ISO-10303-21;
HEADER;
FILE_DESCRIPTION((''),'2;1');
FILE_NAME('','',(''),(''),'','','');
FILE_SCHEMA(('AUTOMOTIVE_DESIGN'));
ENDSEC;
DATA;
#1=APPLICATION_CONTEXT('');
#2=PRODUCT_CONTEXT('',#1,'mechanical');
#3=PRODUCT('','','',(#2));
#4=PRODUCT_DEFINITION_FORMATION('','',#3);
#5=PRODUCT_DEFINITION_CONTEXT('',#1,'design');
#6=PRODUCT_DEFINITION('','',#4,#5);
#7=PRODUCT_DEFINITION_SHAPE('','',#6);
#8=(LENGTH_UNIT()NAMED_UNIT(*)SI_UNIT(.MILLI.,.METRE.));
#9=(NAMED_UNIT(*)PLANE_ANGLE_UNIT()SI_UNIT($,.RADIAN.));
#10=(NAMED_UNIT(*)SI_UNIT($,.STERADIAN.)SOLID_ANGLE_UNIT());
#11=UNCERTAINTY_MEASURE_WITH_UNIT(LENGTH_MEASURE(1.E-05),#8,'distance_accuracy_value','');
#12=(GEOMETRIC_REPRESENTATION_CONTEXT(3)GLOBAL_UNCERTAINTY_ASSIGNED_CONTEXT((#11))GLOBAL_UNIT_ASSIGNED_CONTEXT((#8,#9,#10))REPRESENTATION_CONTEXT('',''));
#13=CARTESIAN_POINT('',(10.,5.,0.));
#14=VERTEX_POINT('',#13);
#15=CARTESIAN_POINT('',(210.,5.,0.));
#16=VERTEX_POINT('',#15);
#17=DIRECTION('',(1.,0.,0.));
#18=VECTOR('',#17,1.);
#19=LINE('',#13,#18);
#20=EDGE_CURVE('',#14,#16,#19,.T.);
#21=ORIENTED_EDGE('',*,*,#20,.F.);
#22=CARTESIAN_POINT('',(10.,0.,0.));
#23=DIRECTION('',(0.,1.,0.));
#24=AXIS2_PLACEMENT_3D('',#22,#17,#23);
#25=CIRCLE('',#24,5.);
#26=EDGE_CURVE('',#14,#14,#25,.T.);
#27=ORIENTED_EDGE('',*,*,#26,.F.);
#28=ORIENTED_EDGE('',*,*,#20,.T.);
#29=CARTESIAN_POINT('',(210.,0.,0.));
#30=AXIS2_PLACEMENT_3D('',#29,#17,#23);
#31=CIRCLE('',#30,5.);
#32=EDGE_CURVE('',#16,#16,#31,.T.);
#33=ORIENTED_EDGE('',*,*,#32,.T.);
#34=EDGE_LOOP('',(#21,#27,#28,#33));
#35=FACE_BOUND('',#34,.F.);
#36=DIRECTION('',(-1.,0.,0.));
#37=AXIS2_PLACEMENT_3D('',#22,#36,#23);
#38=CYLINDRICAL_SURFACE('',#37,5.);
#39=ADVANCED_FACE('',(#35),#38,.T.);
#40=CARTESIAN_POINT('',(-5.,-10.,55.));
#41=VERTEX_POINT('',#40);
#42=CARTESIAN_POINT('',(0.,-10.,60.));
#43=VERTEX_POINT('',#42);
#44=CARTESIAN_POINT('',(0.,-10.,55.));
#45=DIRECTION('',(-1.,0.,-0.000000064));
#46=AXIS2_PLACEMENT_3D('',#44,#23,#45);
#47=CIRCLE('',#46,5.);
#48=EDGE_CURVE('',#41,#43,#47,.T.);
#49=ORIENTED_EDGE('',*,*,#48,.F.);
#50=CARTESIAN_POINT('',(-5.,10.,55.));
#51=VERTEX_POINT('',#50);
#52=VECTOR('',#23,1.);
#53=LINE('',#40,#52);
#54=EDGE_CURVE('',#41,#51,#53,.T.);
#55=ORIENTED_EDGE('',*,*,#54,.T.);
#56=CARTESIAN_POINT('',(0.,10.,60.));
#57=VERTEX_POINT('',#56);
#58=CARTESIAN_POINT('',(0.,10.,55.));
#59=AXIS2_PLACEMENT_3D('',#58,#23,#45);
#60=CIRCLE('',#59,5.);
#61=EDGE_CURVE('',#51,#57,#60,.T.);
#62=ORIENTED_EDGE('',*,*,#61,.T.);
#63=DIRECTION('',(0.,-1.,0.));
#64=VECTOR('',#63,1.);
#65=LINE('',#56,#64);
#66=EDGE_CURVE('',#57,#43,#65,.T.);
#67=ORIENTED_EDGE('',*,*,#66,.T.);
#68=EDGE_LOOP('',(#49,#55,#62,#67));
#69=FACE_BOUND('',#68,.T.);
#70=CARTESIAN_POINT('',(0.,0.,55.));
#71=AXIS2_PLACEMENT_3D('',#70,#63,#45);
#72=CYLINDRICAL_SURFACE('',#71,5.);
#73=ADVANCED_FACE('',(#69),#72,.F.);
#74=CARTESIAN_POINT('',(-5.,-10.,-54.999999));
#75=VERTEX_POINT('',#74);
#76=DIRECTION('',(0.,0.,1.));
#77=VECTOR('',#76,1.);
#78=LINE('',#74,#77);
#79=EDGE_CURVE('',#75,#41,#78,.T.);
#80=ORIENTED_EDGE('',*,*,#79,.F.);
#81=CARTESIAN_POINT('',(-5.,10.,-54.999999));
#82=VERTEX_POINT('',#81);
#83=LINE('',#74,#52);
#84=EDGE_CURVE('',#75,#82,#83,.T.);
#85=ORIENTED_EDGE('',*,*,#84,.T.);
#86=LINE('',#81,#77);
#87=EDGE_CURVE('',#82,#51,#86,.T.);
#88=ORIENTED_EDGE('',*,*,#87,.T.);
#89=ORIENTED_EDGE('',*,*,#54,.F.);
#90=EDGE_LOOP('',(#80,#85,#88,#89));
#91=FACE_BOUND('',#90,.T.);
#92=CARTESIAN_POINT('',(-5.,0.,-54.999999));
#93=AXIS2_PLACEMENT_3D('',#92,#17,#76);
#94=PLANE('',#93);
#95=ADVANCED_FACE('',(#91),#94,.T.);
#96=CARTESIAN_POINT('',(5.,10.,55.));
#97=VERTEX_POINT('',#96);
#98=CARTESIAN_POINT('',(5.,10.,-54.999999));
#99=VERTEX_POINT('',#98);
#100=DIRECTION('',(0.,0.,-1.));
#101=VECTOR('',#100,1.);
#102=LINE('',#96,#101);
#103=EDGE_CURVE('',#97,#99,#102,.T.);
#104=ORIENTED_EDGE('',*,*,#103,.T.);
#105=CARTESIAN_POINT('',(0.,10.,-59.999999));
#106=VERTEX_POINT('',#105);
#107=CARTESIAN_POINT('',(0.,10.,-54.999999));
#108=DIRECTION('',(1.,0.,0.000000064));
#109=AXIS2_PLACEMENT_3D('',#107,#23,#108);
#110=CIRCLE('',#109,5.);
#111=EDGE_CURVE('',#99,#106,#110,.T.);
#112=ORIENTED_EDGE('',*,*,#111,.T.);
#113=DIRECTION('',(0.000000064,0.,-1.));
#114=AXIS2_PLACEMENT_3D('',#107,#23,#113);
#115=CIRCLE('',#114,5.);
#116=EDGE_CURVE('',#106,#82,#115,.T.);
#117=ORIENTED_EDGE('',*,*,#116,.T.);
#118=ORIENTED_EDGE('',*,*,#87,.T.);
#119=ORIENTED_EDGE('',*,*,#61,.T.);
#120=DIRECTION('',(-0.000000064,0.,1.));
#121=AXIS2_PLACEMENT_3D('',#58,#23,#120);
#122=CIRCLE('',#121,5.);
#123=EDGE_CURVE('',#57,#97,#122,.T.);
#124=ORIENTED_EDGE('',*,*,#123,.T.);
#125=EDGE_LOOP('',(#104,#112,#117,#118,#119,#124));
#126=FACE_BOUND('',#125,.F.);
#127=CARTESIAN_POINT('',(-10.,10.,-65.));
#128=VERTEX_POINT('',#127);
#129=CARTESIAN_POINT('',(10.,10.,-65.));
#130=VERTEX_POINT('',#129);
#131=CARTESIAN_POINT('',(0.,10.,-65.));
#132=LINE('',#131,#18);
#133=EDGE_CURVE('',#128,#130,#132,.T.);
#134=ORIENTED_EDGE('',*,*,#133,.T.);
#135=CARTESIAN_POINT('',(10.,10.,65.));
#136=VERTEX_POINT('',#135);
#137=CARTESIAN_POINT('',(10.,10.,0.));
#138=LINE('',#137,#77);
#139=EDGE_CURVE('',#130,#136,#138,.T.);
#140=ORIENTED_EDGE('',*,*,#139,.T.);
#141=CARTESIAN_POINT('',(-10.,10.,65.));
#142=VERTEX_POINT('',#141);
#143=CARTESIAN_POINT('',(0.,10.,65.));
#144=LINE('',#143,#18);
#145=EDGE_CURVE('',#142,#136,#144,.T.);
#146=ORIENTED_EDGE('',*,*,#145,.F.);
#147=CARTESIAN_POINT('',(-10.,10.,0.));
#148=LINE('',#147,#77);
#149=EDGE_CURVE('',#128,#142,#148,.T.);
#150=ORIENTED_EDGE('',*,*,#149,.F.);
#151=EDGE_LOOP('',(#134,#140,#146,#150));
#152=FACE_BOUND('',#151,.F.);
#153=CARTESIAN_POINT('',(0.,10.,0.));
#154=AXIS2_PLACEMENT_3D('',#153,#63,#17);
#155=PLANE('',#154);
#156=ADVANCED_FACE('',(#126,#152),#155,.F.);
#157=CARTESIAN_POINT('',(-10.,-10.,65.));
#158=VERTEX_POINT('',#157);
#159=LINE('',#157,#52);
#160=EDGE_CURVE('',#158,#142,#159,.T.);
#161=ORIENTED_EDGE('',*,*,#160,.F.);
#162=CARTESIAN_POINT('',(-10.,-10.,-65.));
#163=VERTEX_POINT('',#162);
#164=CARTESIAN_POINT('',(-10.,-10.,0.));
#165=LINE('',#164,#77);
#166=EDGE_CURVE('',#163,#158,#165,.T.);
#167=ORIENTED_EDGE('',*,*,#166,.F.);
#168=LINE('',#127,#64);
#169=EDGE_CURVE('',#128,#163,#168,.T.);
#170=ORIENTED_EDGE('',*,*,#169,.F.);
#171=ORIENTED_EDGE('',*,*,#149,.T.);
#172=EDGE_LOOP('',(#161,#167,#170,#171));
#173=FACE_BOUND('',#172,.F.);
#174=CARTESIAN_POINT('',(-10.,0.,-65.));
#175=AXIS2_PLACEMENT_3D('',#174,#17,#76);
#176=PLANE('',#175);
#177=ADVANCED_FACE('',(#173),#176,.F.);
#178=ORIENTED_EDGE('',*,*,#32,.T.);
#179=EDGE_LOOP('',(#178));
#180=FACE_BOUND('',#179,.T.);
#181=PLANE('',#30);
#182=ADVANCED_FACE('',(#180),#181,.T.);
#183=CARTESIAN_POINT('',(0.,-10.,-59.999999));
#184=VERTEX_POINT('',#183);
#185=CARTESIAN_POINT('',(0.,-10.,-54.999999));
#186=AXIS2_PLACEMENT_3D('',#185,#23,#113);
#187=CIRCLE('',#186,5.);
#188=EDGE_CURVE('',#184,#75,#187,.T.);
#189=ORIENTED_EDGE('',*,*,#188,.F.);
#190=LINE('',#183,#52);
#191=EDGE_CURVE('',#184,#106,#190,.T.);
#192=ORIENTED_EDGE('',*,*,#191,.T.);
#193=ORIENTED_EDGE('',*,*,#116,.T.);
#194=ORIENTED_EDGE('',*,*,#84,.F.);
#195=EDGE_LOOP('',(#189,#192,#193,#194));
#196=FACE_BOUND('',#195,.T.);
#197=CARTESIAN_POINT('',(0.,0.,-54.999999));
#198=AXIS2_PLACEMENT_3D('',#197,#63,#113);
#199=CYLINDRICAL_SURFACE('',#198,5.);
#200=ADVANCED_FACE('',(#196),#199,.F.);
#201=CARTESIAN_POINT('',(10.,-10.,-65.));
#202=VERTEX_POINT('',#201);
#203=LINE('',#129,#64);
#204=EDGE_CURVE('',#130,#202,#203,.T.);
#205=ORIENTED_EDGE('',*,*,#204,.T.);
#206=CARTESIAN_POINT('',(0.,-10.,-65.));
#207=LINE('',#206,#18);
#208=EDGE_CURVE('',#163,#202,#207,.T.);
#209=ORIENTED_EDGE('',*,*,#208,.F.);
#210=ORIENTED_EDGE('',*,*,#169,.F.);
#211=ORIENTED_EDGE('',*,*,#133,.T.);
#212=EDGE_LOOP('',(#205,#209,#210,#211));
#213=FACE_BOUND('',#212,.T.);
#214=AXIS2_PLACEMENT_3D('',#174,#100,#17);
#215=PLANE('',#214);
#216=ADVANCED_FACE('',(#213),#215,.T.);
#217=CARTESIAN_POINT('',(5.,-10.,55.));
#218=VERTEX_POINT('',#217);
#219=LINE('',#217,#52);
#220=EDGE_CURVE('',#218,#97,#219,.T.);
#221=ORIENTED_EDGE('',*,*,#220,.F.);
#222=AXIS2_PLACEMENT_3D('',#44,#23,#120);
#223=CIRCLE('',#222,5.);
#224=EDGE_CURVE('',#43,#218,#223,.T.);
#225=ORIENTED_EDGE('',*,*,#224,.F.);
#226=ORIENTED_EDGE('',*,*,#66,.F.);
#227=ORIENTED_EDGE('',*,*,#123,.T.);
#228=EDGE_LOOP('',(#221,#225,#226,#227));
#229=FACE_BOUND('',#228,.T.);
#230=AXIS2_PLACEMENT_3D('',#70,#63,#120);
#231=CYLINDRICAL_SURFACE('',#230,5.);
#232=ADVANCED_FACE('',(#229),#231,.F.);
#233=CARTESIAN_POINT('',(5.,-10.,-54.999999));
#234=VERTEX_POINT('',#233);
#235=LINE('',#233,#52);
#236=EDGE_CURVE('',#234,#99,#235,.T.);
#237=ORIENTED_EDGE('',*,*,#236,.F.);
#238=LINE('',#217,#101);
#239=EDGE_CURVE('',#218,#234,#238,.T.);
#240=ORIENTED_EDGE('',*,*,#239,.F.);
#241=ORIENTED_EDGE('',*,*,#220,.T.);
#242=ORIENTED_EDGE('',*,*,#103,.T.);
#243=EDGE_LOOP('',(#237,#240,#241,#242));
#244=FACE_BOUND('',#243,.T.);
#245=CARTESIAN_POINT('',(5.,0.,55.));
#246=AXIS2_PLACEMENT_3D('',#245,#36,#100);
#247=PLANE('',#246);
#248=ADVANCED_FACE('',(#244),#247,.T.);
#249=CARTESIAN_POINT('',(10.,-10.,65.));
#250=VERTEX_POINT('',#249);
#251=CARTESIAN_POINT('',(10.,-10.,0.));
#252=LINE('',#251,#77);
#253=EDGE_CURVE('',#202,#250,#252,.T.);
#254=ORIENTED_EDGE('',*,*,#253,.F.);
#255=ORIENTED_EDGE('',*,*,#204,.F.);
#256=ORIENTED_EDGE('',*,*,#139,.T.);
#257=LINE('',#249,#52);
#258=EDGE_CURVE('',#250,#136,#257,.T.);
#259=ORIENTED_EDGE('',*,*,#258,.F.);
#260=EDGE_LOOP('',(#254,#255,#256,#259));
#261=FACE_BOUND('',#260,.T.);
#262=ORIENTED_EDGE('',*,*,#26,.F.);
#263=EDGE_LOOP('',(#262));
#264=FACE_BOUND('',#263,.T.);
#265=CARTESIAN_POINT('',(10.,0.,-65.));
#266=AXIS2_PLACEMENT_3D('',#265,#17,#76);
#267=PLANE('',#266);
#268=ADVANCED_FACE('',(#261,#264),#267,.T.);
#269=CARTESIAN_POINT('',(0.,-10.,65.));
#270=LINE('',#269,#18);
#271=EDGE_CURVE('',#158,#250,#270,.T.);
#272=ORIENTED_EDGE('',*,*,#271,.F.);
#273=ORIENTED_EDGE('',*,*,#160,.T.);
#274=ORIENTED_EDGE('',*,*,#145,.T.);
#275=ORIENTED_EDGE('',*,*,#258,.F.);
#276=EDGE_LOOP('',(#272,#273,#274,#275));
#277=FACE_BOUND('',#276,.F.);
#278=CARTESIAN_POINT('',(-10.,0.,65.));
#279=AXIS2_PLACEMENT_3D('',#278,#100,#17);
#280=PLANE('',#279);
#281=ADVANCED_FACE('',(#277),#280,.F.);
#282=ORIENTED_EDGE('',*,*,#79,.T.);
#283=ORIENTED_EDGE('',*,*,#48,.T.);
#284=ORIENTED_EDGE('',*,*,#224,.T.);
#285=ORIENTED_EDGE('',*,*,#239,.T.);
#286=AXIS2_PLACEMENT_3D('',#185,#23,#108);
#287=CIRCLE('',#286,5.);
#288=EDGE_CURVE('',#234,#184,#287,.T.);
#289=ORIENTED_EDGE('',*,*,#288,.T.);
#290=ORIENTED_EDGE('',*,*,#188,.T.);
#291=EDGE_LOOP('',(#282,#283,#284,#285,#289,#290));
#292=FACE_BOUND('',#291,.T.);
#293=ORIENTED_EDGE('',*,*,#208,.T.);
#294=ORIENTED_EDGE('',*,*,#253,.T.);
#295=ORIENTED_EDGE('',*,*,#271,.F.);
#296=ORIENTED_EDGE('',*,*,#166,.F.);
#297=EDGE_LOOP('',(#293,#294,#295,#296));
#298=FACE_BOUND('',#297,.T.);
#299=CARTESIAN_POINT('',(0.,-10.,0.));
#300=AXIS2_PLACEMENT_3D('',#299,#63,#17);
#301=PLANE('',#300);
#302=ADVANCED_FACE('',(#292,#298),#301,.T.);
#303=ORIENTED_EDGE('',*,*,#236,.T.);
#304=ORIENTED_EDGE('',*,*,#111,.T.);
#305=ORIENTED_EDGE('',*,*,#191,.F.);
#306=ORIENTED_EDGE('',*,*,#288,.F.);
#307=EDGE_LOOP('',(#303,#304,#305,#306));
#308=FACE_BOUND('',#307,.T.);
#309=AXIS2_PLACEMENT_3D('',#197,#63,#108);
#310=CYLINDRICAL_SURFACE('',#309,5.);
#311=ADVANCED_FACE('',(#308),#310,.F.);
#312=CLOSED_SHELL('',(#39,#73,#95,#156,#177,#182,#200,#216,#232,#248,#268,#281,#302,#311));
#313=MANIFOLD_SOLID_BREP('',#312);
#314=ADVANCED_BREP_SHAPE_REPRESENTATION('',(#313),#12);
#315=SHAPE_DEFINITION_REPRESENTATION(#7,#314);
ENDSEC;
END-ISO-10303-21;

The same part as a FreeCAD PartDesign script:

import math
import FreeCAD as App
import Part
import Sketcher
from FreeCAD import Vector


def add_polygon(sketch, points):
    """Adds a closed chain of lines whose ends are joined by coincident constraints."""
    first, n = sketch.GeometryCount, len(points)
    for a, b in zip(points, points[1:] + points[:1]):
        sketch.addGeometry(Part.LineSegment(App.Vector(*a, 0), App.Vector(*b, 0)), False)
    for i in range(n):
        sketch.addConstraint(Sketcher.Constraint("Coincident", first + i, 2, first + (i + 1) % n, 1))

doc = App.newDocument("Part")
body = doc.addObject("PartDesign::Body", "Body")

# Sketch on XZ plane
sketch1 = body.newObject("Sketcher::SketchObject", "Sketch")
sketch1.AttachmentSupport = (doc.getObject("XZ_Plane"), [""])
sketch1.MapMode = "FlatFace"
add_polygon(sketch1, [(-10, 65), (-10, -65), (10, -65), (10, 65)])  # lines 0-3
sketch1.addGeometry(Part.ArcOfCircle(Part.Circle(Vector(0, 55, 0), Vector(0, 0, 1), 5), math.radians(90), math.radians(180)), False)  # 4
sketch1.addGeometry(Part.ArcOfCircle(Part.Circle(Vector(0, 55, 0), Vector(0, 0, 1), 5), math.radians(0), math.radians(90)), False)  # 5
sketch1.addGeometry(Part.LineSegment(Vector(5, 55, 0), Vector(5, -55, 0)), False)  # 6
sketch1.addGeometry(Part.ArcOfCircle(Part.Circle(Vector(0, -55, 0), Vector(0, 0, 1), 5), math.radians(-90), math.radians(0)), False)  # 7
sketch1.addGeometry(Part.ArcOfCircle(Part.Circle(Vector(0, -55, 0), Vector(0, 0, 1), 5), math.radians(180), math.radians(270)), False)  # 8
sketch1.addGeometry(Part.LineSegment(Vector(-5, -55, 0), Vector(-5, 55, 0)), False)  # 9
sketch1.addConstraint([
    Sketcher.Constraint("Tangent", 4, 1, 5, 2),
    Sketcher.Constraint("Tangent", 5, 1, 6, 1),
    Sketcher.Constraint("Tangent", 6, 2, 7, 2),
    Sketcher.Constraint("Tangent", 7, 1, 8, 2),
    Sketcher.Constraint("Tangent", 8, 1, 9, 1),
    Sketcher.Constraint("Tangent", 9, 2, 4, 2),
    Sketcher.Constraint("Vertical", 0),
    Sketcher.Constraint("Horizontal", 1),
    Sketcher.Constraint("Vertical", 2),
    Sketcher.Constraint("Horizontal", 3),
    Sketcher.Constraint("Vertical", 6),
    Sketcher.Constraint("Vertical", 9),
    Sketcher.Constraint("Equal", 4, 5),
    Sketcher.Constraint("Equal", 5, 7),
    Sketcher.Constraint("Symmetric", 4, 3, 7, 3, -1, 1),
    Sketcher.Constraint("Symmetric", 0, 2, 2, 2, -1, 1),
    Sketcher.Constraint("PointOnObject", 4, 1, -2),
    Sketcher.Constraint("PointOnObject", 7, 1, -2),
    Sketcher.Constraint("Radius", 4, 5.0),
    Sketcher.Constraint("DistanceX", 1, 1, 1, 2, 20.0),
    Sketcher.Constraint("DistanceY", 0, 2, 0, 1, 130.0),
    Sketcher.Constraint("DistanceY", 6, 2, 6, 1, 109.999999),
])
pad1 = body.newObject("PartDesign::Pad", "Pad")
pad1.Profile = sketch1
pad1.Type = "TwoLengths"
pad1.Length = 10
pad1.Length2 = 10

# Sketch on YZ plane
sketch2 = body.newObject("Sketcher::SketchObject", "Sketch001")
sketch2.AttachmentSupport = (doc.getObject("YZ_Plane"), [""])
sketch2.MapMode = "FlatFace"
sketch2.AttachmentOffset = App.Placement(Vector(0, 0, 10), App.Rotation())
sketch2.addGeometry(Part.Circle(Vector(0, 0, 0), Vector(0, 0, 1), 5), False)
sketch2.addConstraint([
    Sketcher.Constraint("Coincident", 0, 3, -1, 1),
    Sketcher.Constraint("Diameter", 0, 10.0),
])
pad2 = body.newObject("PartDesign::Pad", "Pad001")
pad2.Profile = sketch2
pad2.Length = 200

doc.recompute()
